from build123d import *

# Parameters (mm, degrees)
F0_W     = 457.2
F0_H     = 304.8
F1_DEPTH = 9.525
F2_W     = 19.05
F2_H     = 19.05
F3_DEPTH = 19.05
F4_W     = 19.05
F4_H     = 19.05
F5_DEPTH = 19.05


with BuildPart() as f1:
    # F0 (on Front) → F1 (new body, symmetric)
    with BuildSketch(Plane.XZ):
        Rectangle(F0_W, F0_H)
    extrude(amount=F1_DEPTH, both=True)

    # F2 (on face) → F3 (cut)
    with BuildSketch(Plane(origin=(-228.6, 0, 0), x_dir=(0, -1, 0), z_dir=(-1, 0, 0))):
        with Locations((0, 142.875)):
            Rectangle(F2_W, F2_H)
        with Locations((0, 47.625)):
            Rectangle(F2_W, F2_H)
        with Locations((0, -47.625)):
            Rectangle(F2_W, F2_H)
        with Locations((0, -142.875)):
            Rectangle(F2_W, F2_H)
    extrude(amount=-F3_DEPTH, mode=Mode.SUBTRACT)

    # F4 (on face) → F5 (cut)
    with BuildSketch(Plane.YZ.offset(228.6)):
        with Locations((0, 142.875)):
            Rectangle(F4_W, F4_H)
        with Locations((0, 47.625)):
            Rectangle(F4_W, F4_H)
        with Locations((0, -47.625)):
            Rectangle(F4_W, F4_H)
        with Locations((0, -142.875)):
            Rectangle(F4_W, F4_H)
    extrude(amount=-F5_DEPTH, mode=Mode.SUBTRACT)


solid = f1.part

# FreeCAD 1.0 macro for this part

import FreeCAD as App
import Part
import Sketcher
Q = App.Units.Quantity


def add_polygon(sketch, points):
    """Adds a closed chain of lines whose ends are joined by coincident constraints."""
    first, n = sketch.GeometryCount, len(points)
    for a, b in zip(points, points[1:] + points[:1]):
        sketch.addGeometry(Part.LineSegment(App.Vector(*a, 0), App.Vector(*b, 0)), False)
    for i in range(n):
        sketch.addConstraint(Sketcher.Constraint("Coincident", first + i, 2, first + (i + 1) % n, 1))

doc = App.newDocument("Part")
body = doc.addObject("PartDesign::Body", "Body")

# Sketch on XZ plane
sketch1 = body.newObject("Sketcher::SketchObject", "Sketch")
sketch1.AttachmentSupport = (doc.getObject("XZ_Plane"), [""])
sketch1.MapMode = "FlatFace"
add_polygon(sketch1, [(-229, 152), (-229, -152), (229, -152), (229, 152)])  # lines 0-3
sketch1.addConstraint([
    Sketcher.Constraint("Vertical", 0),
    Sketcher.Constraint("Horizontal", 1),
    Sketcher.Constraint("Vertical", 2),
    Sketcher.Constraint("Horizontal", 3),
    Sketcher.Constraint("Symmetric", 0, 2, 2, 2, -1, 1),
    Sketcher.Constraint("DistanceX", 1, 1, 1, 2, Q("18 in")),
    Sketcher.Constraint("DistanceY", 0, 2, 0, 1, Q("12 in")),
])
pad1 = body.newObject("PartDesign::Pad", "Pad")
pad1.Profile = sketch1
pad1.Length = Q("0.75 in")
pad1.Midplane = True

# Sketch on YZ plane
sketch2 = body.newObject("Sketcher::SketchObject", "Sketch001")
sketch2.AttachmentSupport = (doc.getObject("YZ_Plane"), [""])
sketch2.MapMode = "FlatFace"
sketch2.AttachmentOffset = App.Placement(App.Vector(0, 0, -9 * 25.4), App.Rotation())
add_polygon(sketch2, [(10, 152), (10, 133), (-10, 133), (-10, 152)])  # lines 0-3
add_polygon(sketch2, [(10, 57), (10, 38), (-10, 38), (-10, 57)])  # lines 4-7
add_polygon(sketch2, [(10, -38), (10, -57), (-10, -57), (-10, -38)])  # lines 8-11
add_polygon(sketch2, [(10, -133), (10, -152), (-10, -152), (-10, -133)])  # lines 12-15
sketch2.addConstraint([
    Sketcher.Constraint("Vertical", 0),
    Sketcher.Constraint("Horizontal", 1),
    Sketcher.Constraint("Vertical", 2),
    Sketcher.Constraint("Horizontal", 3),
    Sketcher.Constraint("Vertical", 4),
    Sketcher.Constraint("Horizontal", 5),
    Sketcher.Constraint("Vertical", 6),
    Sketcher.Constraint("Horizontal", 7),
    Sketcher.Constraint("Vertical", 8),
    Sketcher.Constraint("Horizontal", 9),
    Sketcher.Constraint("Vertical", 10),
    Sketcher.Constraint("Horizontal", 11),
    Sketcher.Constraint("Vertical", 12),
    Sketcher.Constraint("Horizontal", 13),
    Sketcher.Constraint("Vertical", 14),
    Sketcher.Constraint("Horizontal", 15),
    Sketcher.Constraint("Symmetric", 6, 2, 8, 2, -1, 1),
    Sketcher.Constraint("Symmetric", 4, 2, 10, 2, -1, 1),
    Sketcher.Constraint("Symmetric", 2, 2, 12, 2, -1, 1),
    Sketcher.Constraint("Symmetric", 0, 2, 14, 2, -1, 1),
    Sketcher.Constraint("Vertical", 3, 2, 4, 2),
    Sketcher.Constraint("Vertical", 2, 2, 5, 2),
    Sketcher.Constraint("Vertical", 7, 2, 8, 2),
    Sketcher.Constraint("Equal", 15, 0),
    Sketcher.Constraint("Equal", 2, 4),
    Sketcher.Constraint("DistanceY", -1, 1, 2, 2, Q("6 in")),
    Sketcher.Constraint("DistanceY", 6, 2, 1, 2, Q("3 in")),
    Sketcher.Constraint("DistanceY", 10, 2, 5, 2, Q("3 in")),
])
pocket1 = body.newObject("PartDesign::Pocket", "Pocket")
pocket1.Profile = sketch2
pocket1.Length = Q("0.75 in")
pocket1.Reversed = True

# Sketch on YZ plane
sketch3 = body.newObject("Sketcher::SketchObject", "Sketch002")
sketch3.AttachmentSupport = (doc.getObject("YZ_Plane"), [""])
sketch3.MapMode = "FlatFace"
sketch3.AttachmentOffset = App.Placement(App.Vector(0, 0, 9 * 25.4), App.Rotation())
add_polygon(sketch3, [(-10, 152), (-10, 133), (10, 133), (10, 152)])  # lines 0-3
add_polygon(sketch3, [(-10, 57), (-10, 38), (10, 38), (10, 57)])  # lines 4-7
add_polygon(sketch3, [(-10, -38), (-10, -57), (10, -57), (10, -38)])  # lines 8-11
add_polygon(sketch3, [(-10, -133), (-10, -152), (10, -152), (10, -133)])  # lines 12-15
sketch3.addConstraint([
    Sketcher.Constraint("Vertical", 0),
    Sketcher.Constraint("Horizontal", 1),
    Sketcher.Constraint("Vertical", 2),
    Sketcher.Constraint("Horizontal", 3),
    Sketcher.Constraint("Vertical", 4),
    Sketcher.Constraint("Horizontal", 5),
    Sketcher.Constraint("Vertical", 6),
    Sketcher.Constraint("Horizontal", 7),
    Sketcher.Constraint("Vertical", 8),
    Sketcher.Constraint("Horizontal", 9),
    Sketcher.Constraint("Vertical", 10),
    Sketcher.Constraint("Horizontal", 11),
    Sketcher.Constraint("Vertical", 12),
    Sketcher.Constraint("Horizontal", 13),
    Sketcher.Constraint("Vertical", 14),
    Sketcher.Constraint("Horizontal", 15),
    Sketcher.Constraint("Symmetric", 6, 2, 8, 2, -1, 1),
    Sketcher.Constraint("Symmetric", 4, 2, 10, 2, -1, 1),
    Sketcher.Constraint("Symmetric", 2, 2, 12, 2, -1, 1),
    Sketcher.Constraint("Symmetric", 0, 2, 14, 2, -1, 1),
    Sketcher.Constraint("Vertical", 3, 2, 4, 2),
    Sketcher.Constraint("Vertical", 2, 2, 5, 2),
    Sketcher.Constraint("Vertical", 7, 2, 8, 2),
    Sketcher.Constraint("Equal", 15, 0),
    Sketcher.Constraint("Equal", 2, 4),
    Sketcher.Constraint("DistanceY", -1, 1, 2, 2, Q("6 in")),
    Sketcher.Constraint("DistanceY", 6, 2, 1, 2, Q("3 in")),
    Sketcher.Constraint("DistanceY", 10, 2, 5, 2, Q("3 in")),
])
pocket2 = body.newObject("PartDesign::Pocket", "Pocket001")
pocket2.Profile = sketch3
pocket2.Length = Q("0.75 in")

doc.recompute()
